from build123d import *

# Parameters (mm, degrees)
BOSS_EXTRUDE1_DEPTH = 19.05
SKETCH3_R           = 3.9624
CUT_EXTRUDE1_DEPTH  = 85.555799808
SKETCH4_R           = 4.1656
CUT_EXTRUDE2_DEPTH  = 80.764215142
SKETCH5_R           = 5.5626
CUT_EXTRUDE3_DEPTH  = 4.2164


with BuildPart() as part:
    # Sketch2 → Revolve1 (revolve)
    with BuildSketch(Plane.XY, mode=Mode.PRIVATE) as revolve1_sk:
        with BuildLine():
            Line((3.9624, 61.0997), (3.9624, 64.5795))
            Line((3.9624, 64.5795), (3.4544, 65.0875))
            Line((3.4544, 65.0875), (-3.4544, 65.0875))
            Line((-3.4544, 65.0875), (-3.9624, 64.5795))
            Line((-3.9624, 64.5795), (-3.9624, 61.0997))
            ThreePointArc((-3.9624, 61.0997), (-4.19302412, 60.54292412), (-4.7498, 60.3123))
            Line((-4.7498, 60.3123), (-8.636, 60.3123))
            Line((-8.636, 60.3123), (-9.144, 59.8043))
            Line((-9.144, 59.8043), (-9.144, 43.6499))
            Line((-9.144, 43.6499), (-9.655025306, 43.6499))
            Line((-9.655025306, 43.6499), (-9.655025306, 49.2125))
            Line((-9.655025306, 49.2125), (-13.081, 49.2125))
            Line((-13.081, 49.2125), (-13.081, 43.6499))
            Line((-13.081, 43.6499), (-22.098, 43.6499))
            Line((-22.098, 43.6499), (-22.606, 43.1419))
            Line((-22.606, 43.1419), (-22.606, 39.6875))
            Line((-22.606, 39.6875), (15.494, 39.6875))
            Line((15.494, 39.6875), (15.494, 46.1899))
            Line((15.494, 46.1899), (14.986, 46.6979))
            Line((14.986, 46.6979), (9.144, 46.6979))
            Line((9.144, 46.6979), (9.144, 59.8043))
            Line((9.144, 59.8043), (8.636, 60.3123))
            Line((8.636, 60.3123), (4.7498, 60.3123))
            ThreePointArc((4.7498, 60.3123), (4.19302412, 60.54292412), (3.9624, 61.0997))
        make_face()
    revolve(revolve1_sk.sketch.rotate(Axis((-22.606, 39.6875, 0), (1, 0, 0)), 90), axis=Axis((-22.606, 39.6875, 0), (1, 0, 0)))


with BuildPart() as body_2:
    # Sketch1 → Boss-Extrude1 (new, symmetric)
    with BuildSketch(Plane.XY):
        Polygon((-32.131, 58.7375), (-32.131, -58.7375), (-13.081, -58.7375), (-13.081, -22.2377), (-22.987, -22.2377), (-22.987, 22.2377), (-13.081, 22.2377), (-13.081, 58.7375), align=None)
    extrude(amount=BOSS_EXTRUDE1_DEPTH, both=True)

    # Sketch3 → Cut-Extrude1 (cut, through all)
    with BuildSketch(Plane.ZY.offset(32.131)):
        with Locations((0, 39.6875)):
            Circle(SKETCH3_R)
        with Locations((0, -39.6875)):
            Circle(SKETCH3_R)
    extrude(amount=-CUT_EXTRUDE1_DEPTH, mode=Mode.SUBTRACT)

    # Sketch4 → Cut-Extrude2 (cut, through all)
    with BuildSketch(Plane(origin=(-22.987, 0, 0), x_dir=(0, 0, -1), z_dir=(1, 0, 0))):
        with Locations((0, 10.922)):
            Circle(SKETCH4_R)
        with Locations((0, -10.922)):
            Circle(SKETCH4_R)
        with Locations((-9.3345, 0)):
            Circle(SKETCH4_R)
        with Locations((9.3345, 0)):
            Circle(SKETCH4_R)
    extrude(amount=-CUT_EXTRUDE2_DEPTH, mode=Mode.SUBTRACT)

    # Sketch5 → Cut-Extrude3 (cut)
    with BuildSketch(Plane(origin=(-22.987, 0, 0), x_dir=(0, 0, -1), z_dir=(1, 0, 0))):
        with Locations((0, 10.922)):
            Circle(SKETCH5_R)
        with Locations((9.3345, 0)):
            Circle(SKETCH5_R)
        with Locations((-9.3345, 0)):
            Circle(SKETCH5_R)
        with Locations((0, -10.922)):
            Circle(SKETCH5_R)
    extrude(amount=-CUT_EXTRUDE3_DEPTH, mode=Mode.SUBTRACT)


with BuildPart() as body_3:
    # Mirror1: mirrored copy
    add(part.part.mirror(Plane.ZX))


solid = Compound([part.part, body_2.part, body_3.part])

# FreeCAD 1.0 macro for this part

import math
import FreeCAD as App
import Part
import Sketcher
from FreeCAD import Vector
Q = App.Units.Quantity


def add_polygon(sketch, points):
    """Adds a closed chain of lines whose ends are joined by coincident constraints."""
    first, n = sketch.GeometryCount, len(points)
    for a, b in zip(points, points[1:] + points[:1]):
        sketch.addGeometry(Part.LineSegment(App.Vector(*a, 0), App.Vector(*b, 0)), False)
    for i in range(n):
        sketch.addConstraint(Sketcher.Constraint("Coincident", first + i, 2, first + (i + 1) % n, 1))

doc = App.newDocument("Part")
params = doc.addObject("Spreadsheet::Sheet", "Params")
for row, (alias, value) in enumerate([
    ("sketch1_width", "1.5 in"),
    ("sketch1_radius", "0.031 in"),
    ("sketch1_width2", "0.23 in"),
    ("sketch1_width3", "0.272 in"),
    ("sketch1_width4", "0.153 in"),
    ("revolution_angle", "360 deg"),
    ("sketch2_width", "0.75 in"),
    ("sketch2_width2", "0.39 in"),
    ("sketch2_height", "4.625 in"),
    ("sketch2_height2", "1.437 in"),
    ("pad1_length", "1.5 in"),
    ("sketch3_diameter", "0.312 in"),
    ("sketch4_diameter", "0.328 in"),
    ("sketch5_diameter", "0.438 in"),
    ("pocket3_length", "0.166 in"),
], start=1):
    params.set(f"A{row}", alias)
    params.set(f"B{row}", "=" + value)
    params.setAlias(f"B{row}", alias)

body = doc.addObject("PartDesign::Body", "Body")

# Sketch on XY plane
sketch1 = doc.addObject("Sketcher::SketchObject", "Sketch")
body.addObject(sketch1)
sketch1.AttachmentSupport = (doc.XY_Plane, [""])
sketch1.MapMode = "FlatFace"
sketch1.addGeometry(Part.LineSegment(Vector(4, 61.1, 0), Vector(4, 64.6, 0)), False)
sketch1.addGeometry(Part.LineSegment(Vector(4, 64.6, 0), Vector(3.5, 65.1, 0)), False)
sketch1.addGeometry(Part.LineSegment(Vector(3.5, 65.1, 0), Vector(-3.5, 65.1, 0)), False)
sketch1.addGeometry(Part.LineSegment(Vector(-3.5, 65.1, 0), Vector(-4, 64.6, 0)), False)
sketch1.addGeometry(Part.LineSegment(Vector(-4, 64.6, 0), Vector(-4, 61.1, 0)), False)
sketch1.addGeometry(Part.ArcOfCircle(Part.Circle(Vector(-4.7, 61.1, 0), Vector(0, 0, 1), 0.8), math.radians(-90), math.radians(0)), False)
sketch1.addGeometry(Part.LineSegment(Vector(-4.7, 60.3, 0), Vector(-8.6, 60.3, 0)), False)
sketch1.addGeometry(Part.LineSegment(Vector(-8.6, 60.3, 0), Vector(-9.1, 59.8, 0)), False)
sketch1.addGeometry(Part.LineSegment(Vector(-9.1, 59.8, 0), Vector(-9.1, 43.6, 0)), False)
sketch1.addGeometry(Part.LineSegment(Vector(-9.1, 43.6, 0), Vector(-9.7, 43.6, 0)), False)
sketch1.addGeometry(Part.LineSegment(Vector(-9.7, 43.6, 0), Vector(-9.7, 49.2, 0)), False)
sketch1.addGeometry(Part.LineSegment(Vector(-9.7, 49.2, 0), Vector(-13.1, 49.2, 0)), False)
sketch1.addGeometry(Part.LineSegment(Vector(-13.1, 49.2, 0), Vector(-13.1, 43.6, 0)), False)
sketch1.addGeometry(Part.LineSegment(Vector(-13.1, 43.6, 0), Vector(-22.1, 43.6, 0)), False)
sketch1.addGeometry(Part.LineSegment(Vector(-22.1, 43.6, 0), Vector(-22.6, 43.1, 0)), False)
sketch1.addGeometry(Part.LineSegment(Vector(-22.6, 43.1, 0), Vector(-22.6, 39.7, 0)), False)
sketch1.addGeometry(Part.LineSegment(Vector(-22.6, 39.7, 0), Vector(15.5, 39.7, 0)), False)
sketch1.addGeometry(Part.LineSegment(Vector(15.5, 39.7, 0), Vector(15.5, 46.2, 0)), False)
sketch1.addGeometry(Part.LineSegment(Vector(15.5, 46.2, 0), Vector(15, 46.7, 0)), False)
sketch1.addGeometry(Part.LineSegment(Vector(15, 46.7, 0), Vector(9.1, 46.7, 0)), False)
sketch1.addGeometry(Part.LineSegment(Vector(9.1, 46.7, 0), Vector(9.1, 59.8, 0)), False)
sketch1.addGeometry(Part.LineSegment(Vector(9.1, 59.8, 0), Vector(8.6, 60.3, 0)), False)
sketch1.addGeometry(Part.LineSegment(Vector(8.6, 60.3, 0), Vector(4.7, 60.3, 0)), False)
sketch1.addGeometry(Part.ArcOfCircle(Part.Circle(Vector(4.7, 61.1, 0), Vector(0, 0, 1), 0.8), math.radians(180), math.radians(270)), False)
sketch1.addGeometry(Part.LineSegment(Vector(-22.6, 39.7, 0), Vector(15.5, 39.7, 0)), True)  # axis
sketch1.addConstraint(Sketcher.Constraint("Coincident", 0, 2, 1, 1))
sketch1.addConstraint(Sketcher.Constraint("Coincident", 1, 2, 2, 1))
sketch1.addConstraint(Sketcher.Constraint("Coincident", 2, 2, 3, 1))
sketch1.addConstraint(Sketcher.Constraint("Coincident", 3, 2, 4, 1))
sketch1.addConstraint(Sketcher.Constraint("Tangent", 4, 2, 5, 2))
sketch1.addConstraint(Sketcher.Constraint("Tangent", 5, 1, 6, 1))
sketch1.addConstraint(Sketcher.Constraint("Coincident", 6, 2, 7, 1))
sketch1.addConstraint(Sketcher.Constraint("Coincident", 7, 2, 8, 1))
sketch1.addConstraint(Sketcher.Constraint("Coincident", 8, 2, 9, 1))
sketch1.addConstraint(Sketcher.Constraint("Coincident", 9, 2, 10, 1))
sketch1.addConstraint(Sketcher.Constraint("Coincident", 10, 2, 11, 1))
sketch1.addConstraint(Sketcher.Constraint("Coincident", 11, 2, 12, 1))
sketch1.addConstraint(Sketcher.Constraint("Coincident", 12, 2, 13, 1))
sketch1.addConstraint(Sketcher.Constraint("Coincident", 13, 2, 14, 1))
sketch1.addConstraint(Sketcher.Constraint("Coincident", 14, 2, 15, 1))
sketch1.addConstraint(Sketcher.Constraint("Coincident", 15, 2, 16, 1))
sketch1.addConstraint(Sketcher.Constraint("Coincident", 16, 2, 17, 1))
sketch1.addConstraint(Sketcher.Constraint("Coincident", 17, 2, 18, 1))
sketch1.addConstraint(Sketcher.Constraint("Coincident", 18, 2, 19, 1))
sketch1.addConstraint(Sketcher.Constraint("Coincident", 19, 2, 20, 1))
sketch1.addConstraint(Sketcher.Constraint("Coincident", 20, 2, 21, 1))
sketch1.addConstraint(Sketcher.Constraint("Coincident", 21, 2, 22, 1))
sketch1.addConstraint(Sketcher.Constraint("Tangent", 22, 2, 23, 2))
sketch1.addConstraint(Sketcher.Constraint("Tangent", 23, 1, 0, 1))
sketch1.addConstraint(Sketcher.Constraint("Vertical", 0))
sketch1.addConstraint(Sketcher.Constraint("Horizontal", 2))
sketch1.addConstraint(Sketcher.Constraint("Vertical", 4))
sketch1.addConstraint(Sketcher.Constraint("Horizontal", 6))
sketch1.addConstraint(Sketcher.Constraint("Vertical", 8))
sketch1.addConstraint(Sketcher.Constraint("Horizontal", 9))
sketch1.addConstraint(Sketcher.Constraint("Vertical", 10))
sketch1.addConstraint(Sketcher.Constraint("Horizontal", 11))
sketch1.addConstraint(Sketcher.Constraint("Vertical", 12))
sketch1.addConstraint(Sketcher.Constraint("Horizontal", 13))
sketch1.addConstraint(Sketcher.Constraint("Vertical", 15))
sketch1.addConstraint(Sketcher.Constraint("Horizontal", 16))
sketch1.addConstraint(Sketcher.Constraint("Vertical", 17))
sketch1.addConstraint(Sketcher.Constraint("Horizontal", 19))
sketch1.addConstraint(Sketcher.Constraint("Vertical", 20))
sketch1.addConstraint(Sketcher.Constraint("Horizontal", 22))
sketch1.addConstraint(Sketcher.Constraint("Horizontal", 24))
sketch1.addConstraint(Sketcher.Constraint("Coincident", 24, 1, 15, 2))
sketch1.addConstraint(Sketcher.Constraint("Equal", 5, 23))
sketch1.addConstraint(Sketcher.Constraint("Symmetric", 5, 3, 23, 3, -2))
sketch1.addConstraint(Sketcher.Constraint("Symmetric", 7, 2, 20, 2, -2))
sketch1.addConstraint(Sketcher.Constraint("Perpendicular", 1, 3))
sketch1.addConstraint(Sketcher.Constraint("Parallel", 3, 7))
sketch1.addConstraint(Sketcher.Constraint("Parallel", 7, 14))
sketch1.addConstraint(Sketcher.Constraint("Perpendicular", 14, 18))
sketch1.addConstraint(Sketcher.Constraint("Parallel", 18, 21))
sketch1.addConstraint(Sketcher.Constraint("Horizontal", 0, 2, 3, 2))
sketch1.addConstraint(Sketcher.Constraint("Horizontal", 9, 2, 12, 2))
sketch1.addConstraint(Sketcher.Constraint("Vertical", 17, 2, 24, 2))
sketch1.addConstraint(Sketcher.Constraint("Equal", 6, 22))
sketch1.addConstraint(Sketcher.Constraint("Equal", 3, 7))
sketch1.addConstraint(Sketcher.Constraint("Equal", 7, 14))
sketch1.addConstraint(Sketcher.Constraint("Equal", 14, 18))
sketch1.addConstraint(Sketcher.Constraint("DistanceX", 16, 1, 16, 2, Q("1.5 in")))
sketch1.addConstraint(Sketcher.Constraint("Radius", 5, Q("0.031 in")))
sketch1.addConstraint(Sketcher.Constraint("DistanceX", 19, 2, 19, 1, Q("0.23 in")))
sketch1.addConstraint(Sketcher.Constraint("DistanceX", 2, 2, 2, 1, Q("0.272 in")))
sketch1.addConstraint(Sketcher.Constraint("DistanceX", 6, 2, 6, 1, Q("0.153 in")))
sketch1.addConstraint(Sketcher.Constraint("DistanceX", 13, 2, 13, 1, Q("0.355 in")))
sketch1.addConstraint(Sketcher.Constraint("DistanceY", 0, 1, 0, 2, Q("0.137 in")))
sketch1.addConstraint(Sketcher.Constraint("DistanceY", 8, 2, 8, 1, Q("0.636 in")))
sketch1.addConstraint(Sketcher.Constraint("DistanceY", 10, 1, 10, 2, Q("0.219 in")))
sketch1.addConstraint(Sketcher.Constraint("DistanceY", 15, 2, 15, 1, Q("0.136 in")))
sketch1.addConstraint(Sketcher.Constraint("DistanceY", 17, 1, 17, 2, Q("0.256 in")))
sketch1.addConstraint(Sketcher.Constraint("DistanceX", 6, 2, -1, 1, Q("0.34 in")))
sketch1.addConstraint(Sketcher.Constraint("DistanceY", -1, 1, 1, 2, Q("2.5625 in")))
sketch1.addConstraint(Sketcher.Constraint("DistanceX", 9, 2, 9, 1, 0.511025))
sketch1.setExpression("Constraints[57]", "Params.sketch1_width")
sketch1.setExpression("Constraints[58]", "Params.sketch1_radius")
sketch1.setExpression("Constraints[59]", "Params.sketch1_width2")
sketch1.setExpression("Constraints[60]", "Params.sketch1_width3")
sketch1.setExpression("Constraints[61]", "Params.sketch1_width4")
revolution = doc.addObject("PartDesign::Revolution", "Revolution")
body.addObject(revolution)
revolution.Profile = sketch1
revolution.ReferenceAxis = (sketch1, ["Axis0"])
revolution.setExpression("Angle", "Params.revolution_angle")
body2 = doc.addObject("PartDesign::Body", "Body001")

# Sketch on XY plane
sketch2 = doc.addObject("Sketcher::SketchObject", "Sketch001")
body2.addObject(sketch2)
sketch2.AttachmentSupport = (doc.getObject("XY_Plane001"), [""])
sketch2.MapMode = "FlatFace"
add_polygon(sketch2, [(-32, 59), (-32, -59), (-13, -59), (-13, -22), (-23, -22), (-23, 22), (-13, 22), (-13, 59)])  # lines 0-7
sketch2.addConstraint(Sketcher.Constraint("Vertical", 0))
sketch2.addConstraint(Sketcher.Constraint("Horizontal", 1))
sketch2.addConstraint(Sketcher.Constraint("Vertical", 2))
sketch2.addConstraint(Sketcher.Constraint("Horizontal", 3))
sketch2.addConstraint(Sketcher.Constraint("Vertical", 4))
sketch2.addConstraint(Sketcher.Constraint("Horizontal", 5))
sketch2.addConstraint(Sketcher.Constraint("Vertical", 6))
sketch2.addConstraint(Sketcher.Constraint("Horizontal", 7))
sketch2.addConstraint(Sketcher.Constraint("Symmetric", 2, 2, 5, 2, -1))
sketch2.addConstraint(Sketcher.Constraint("Equal", 2, 6))
sketch2.addConstraint(Sketcher.Constraint("DistanceX", 1, 1, 1, 2, Q("0.75 in")))
sketch2.addConstraint(Sketcher.Constraint("DistanceX", 3, 2, 3, 1, Q("0.39 in")))
sketch2.addConstraint(Sketcher.Constraint("DistanceY", 0, 2, 0, 1, Q("4.625 in")))
sketch2.addConstraint(Sketcher.Constraint("DistanceY", 2, 1, 2, 2, Q("1.437 in")))
sketch2.addConstraint(Sketcher.Constraint("DistanceX", 0, 2, -1, 1, Q("1.265 in")))
sketch2.setExpression("Constraints[18]", "Params.sketch2_width")
sketch2.setExpression("Constraints[19]", "Params.sketch2_width2")
sketch2.setExpression("Constraints[20]", "Params.sketch2_height")
sketch2.setExpression("Constraints[21]", "Params.sketch2_height2")
pad1 = doc.addObject("PartDesign::Pad", "Pad")
body2.addObject(pad1)
pad1.Profile = sketch2
pad1.setExpression("Length", "Params.pad1_length")
pad1.Midplane = True

# Sketch on YZ plane
sketch3 = doc.addObject("Sketcher::SketchObject", "Sketch002")
body2.addObject(sketch3)
sketch3.AttachmentSupport = (doc.getObject("YZ_Plane001"), [""])
sketch3.MapMode = "FlatFace"
sketch3.AttachmentOffset = App.Placement(Vector(0, 0, -1.265 * 25.4), App.Rotation())
sketch3.addGeometry(Part.Circle(Vector(39.7, 0, 0), Vector(0, 0, 1), 4), False)
sketch3.addGeometry(Part.Circle(Vector(-39.7, 0, 0), Vector(0, 0, 1), 4), False)
sketch3.addConstraint(Sketcher.Constraint("Equal", 0, 1))
sketch3.addConstraint(Sketcher.Constraint("Symmetric", 0, 3, 1, 3, -1, 1))
sketch3.addConstraint(Sketcher.Constraint("PointOnObject", 0, 3, -1))
sketch3.addConstraint(Sketcher.Constraint("Diameter", 0, Q("0.312 in")))
sketch3.addConstraint(Sketcher.Constraint("DistanceX", -1, 1, 0, 3, Q("1.5625 in")))
sketch3.setExpression("Constraints[3]", "Params.sketch3_diameter")
pocket1 = doc.addObject("PartDesign::Pocket", "Pocket")
body2.addObject(pocket1)
pocket1.Profile = sketch3
pocket1.Type = "ThroughAll"
pocket1.Reversed = True

# Sketch on YZ plane
sketch4 = doc.addObject("Sketcher::SketchObject", "Sketch003")
body2.addObject(sketch4)
sketch4.AttachmentSupport = (doc.getObject("YZ_Plane001"), [""])
sketch4.MapMode = "FlatFace"
sketch4.AttachmentOffset = App.Placement(Vector(0, 0, -0.905 * 25.4), App.Rotation())
sketch4.addGeometry(Part.Circle(Vector(10.9, 0, 0), Vector(0, 0, 1), 4.2), False)
sketch4.addGeometry(Part.Circle(Vector(-10.9, 0, 0), Vector(0, 0, 1), 4.2), False)
sketch4.addGeometry(Part.Circle(Vector(0, 9.3, 0), Vector(0, 0, 1), 4.2), False)
sketch4.addGeometry(Part.Circle(Vector(0, -9.3, 0), Vector(0, 0, 1), 4.2), False)
sketch4.addConstraint(Sketcher.Constraint("Equal", 0, 1))
sketch4.addConstraint(Sketcher.Constraint("Equal", 1, 2))
sketch4.addConstraint(Sketcher.Constraint("Equal", 2, 3))
sketch4.addConstraint(Sketcher.Constraint("Symmetric", 0, 3, 1, 3, -1, 1))
sketch4.addConstraint(Sketcher.Constraint("Symmetric", 2, 3, 3, 3, -1, 1))
sketch4.addConstraint(Sketcher.Constraint("PointOnObject", 0, 3, -1))
sketch4.addConstraint(Sketcher.Constraint("PointOnObject", 2, 3, -2))
sketch4.addConstraint(Sketcher.Constraint("Diameter", 0, Q("0.328 in")))
sketch4.addConstraint(Sketcher.Constraint("DistanceX", -1, 1, 0, 3, Q("0.43 in")))
sketch4.addConstraint(Sketcher.Constraint("DistanceY", 3, 3, 2, 3, Q("0.735 in")))
sketch4.setExpression("Constraints[7]", "Params.sketch4_diameter")
pocket2 = doc.addObject("PartDesign::Pocket", "Pocket001")
body2.addObject(pocket2)
pocket2.Profile = sketch4
pocket2.Type = "ThroughAll"

# Sketch on YZ plane
sketch5 = doc.addObject("Sketcher::SketchObject", "Sketch004")
body2.addObject(sketch5)
sketch5.AttachmentSupport = (doc.getObject("YZ_Plane001"), [""])
sketch5.MapMode = "FlatFace"
sketch5.AttachmentOffset = App.Placement(Vector(0, 0, -0.905 * 25.4), App.Rotation())
sketch5.addGeometry(Part.Circle(Vector(11, 0, 0), Vector(0, 0, 1), 6), False)
sketch5.addGeometry(Part.Circle(Vector(0, -9, 0), Vector(0, 0, 1), 6), False)
sketch5.addGeometry(Part.Circle(Vector(0, 9, 0), Vector(0, 0, 1), 6), False)
sketch5.addGeometry(Part.Circle(Vector(-11, 0, 0), Vector(0, 0, 1), 6), False)
sketch5.addConstraint(Sketcher.Constraint("Equal", 0, 1))
sketch5.addConstraint(Sketcher.Constraint("Equal", 1, 2))
sketch5.addConstraint(Sketcher.Constraint("Equal", 2, 3))
sketch5.addConstraint(Sketcher.Constraint("Symmetric", 1, 3, 2, 3, -1, 1))
sketch5.addConstraint(Sketcher.Constraint("Symmetric", 0, 3, 3, 3, -1, 1))
sketch5.addConstraint(Sketcher.Constraint("PointOnObject", 0, 3, -1))
sketch5.addConstraint(Sketcher.Constraint("PointOnObject", 1, 3, -2))
sketch5.addConstraint(Sketcher.Constraint("Diameter", 0, Q("0.438 in")))
sketch5.addConstraint(Sketcher.Constraint("DistanceX", -1, 1, 0, 3, Q("0.43 in")))
sketch5.addConstraint(Sketcher.Constraint("DistanceY", 1, 3, 2, 3, Q("0.735 in")))
sketch5.setExpression("Constraints[7]", "Params.sketch5_diameter")
pocket3 = doc.addObject("PartDesign::Pocket", "Pocket002")
body2.addObject(pocket3)
pocket3.Profile = sketch5
pocket3.setExpression("Length", "Params.pocket3_length")
body3 = doc.addObject("PartDesign::Body", "Body002")
doc.recompute()

mirroring = doc.addObject("Part::Mirroring", "Mirroring")
mirroring.Source = body
mirroring.Base = Vector(0, 0, 0)
mirroring.Normal = Vector(0, 1, 0)
body3.BaseFeature = mirroring
doc.recompute()
mirroring.Visibility = False

doc.recompute()
